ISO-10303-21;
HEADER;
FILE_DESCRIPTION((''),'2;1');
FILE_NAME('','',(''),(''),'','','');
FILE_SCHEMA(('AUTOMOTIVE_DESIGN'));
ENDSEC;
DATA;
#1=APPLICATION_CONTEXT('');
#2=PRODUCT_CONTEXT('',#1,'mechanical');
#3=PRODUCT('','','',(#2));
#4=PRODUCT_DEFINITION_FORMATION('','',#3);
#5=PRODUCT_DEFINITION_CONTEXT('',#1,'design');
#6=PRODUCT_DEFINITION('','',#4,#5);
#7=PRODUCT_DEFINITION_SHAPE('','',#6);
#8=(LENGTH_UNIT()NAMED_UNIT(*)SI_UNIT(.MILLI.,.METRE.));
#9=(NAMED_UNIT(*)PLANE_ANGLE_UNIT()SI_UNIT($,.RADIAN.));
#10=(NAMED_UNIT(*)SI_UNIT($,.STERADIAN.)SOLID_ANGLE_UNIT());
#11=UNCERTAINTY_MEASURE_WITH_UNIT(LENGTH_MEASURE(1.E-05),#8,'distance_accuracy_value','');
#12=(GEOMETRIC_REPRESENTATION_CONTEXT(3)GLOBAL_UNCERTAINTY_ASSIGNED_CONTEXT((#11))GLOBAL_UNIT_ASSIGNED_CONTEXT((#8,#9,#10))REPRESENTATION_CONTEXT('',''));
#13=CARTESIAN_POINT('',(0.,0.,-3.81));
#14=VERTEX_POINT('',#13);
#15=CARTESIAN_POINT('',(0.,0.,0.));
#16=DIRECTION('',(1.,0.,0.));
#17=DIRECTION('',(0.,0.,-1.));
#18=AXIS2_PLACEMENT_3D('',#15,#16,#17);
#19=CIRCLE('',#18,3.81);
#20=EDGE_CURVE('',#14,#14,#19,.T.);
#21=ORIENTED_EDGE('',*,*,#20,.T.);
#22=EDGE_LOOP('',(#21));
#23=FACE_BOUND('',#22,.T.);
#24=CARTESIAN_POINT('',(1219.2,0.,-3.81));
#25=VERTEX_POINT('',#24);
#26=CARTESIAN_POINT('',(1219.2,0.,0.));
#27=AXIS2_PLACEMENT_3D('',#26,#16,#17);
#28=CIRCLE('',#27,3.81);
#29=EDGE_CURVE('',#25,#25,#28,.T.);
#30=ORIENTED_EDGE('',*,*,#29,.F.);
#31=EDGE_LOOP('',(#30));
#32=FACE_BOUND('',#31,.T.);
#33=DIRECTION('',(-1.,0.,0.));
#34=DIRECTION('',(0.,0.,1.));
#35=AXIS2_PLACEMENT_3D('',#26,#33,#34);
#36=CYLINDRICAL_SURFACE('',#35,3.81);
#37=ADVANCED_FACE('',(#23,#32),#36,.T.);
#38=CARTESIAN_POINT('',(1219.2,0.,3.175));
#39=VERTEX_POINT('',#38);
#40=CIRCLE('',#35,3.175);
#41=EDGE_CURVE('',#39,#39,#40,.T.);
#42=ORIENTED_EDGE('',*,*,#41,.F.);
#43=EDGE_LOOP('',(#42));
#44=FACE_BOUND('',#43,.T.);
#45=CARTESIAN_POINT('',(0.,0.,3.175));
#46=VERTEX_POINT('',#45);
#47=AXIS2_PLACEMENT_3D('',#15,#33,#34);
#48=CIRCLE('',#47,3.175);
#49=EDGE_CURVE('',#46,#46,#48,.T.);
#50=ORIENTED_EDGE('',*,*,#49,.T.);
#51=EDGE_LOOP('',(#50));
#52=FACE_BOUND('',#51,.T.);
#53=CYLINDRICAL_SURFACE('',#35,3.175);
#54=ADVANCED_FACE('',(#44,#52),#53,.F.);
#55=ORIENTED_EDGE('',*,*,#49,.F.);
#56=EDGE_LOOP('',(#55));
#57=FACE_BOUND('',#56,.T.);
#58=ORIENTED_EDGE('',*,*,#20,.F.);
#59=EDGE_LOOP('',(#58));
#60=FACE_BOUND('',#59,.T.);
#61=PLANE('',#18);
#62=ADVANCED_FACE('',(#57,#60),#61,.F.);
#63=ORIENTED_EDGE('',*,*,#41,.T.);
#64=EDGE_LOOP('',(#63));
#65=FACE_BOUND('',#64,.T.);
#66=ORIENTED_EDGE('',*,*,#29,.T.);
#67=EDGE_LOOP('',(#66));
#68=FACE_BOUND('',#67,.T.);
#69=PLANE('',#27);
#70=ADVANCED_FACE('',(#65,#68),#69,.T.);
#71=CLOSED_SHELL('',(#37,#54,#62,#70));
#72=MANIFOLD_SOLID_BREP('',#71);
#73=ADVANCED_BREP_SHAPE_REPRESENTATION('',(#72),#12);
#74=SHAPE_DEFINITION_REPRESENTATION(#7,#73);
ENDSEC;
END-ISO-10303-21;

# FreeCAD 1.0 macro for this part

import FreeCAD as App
import Part
import Sketcher
from FreeCAD import Vector
Q = App.Units.Quantity

doc = App.newDocument("Part")
body = doc.addObject("PartDesign::Body", "Body")

# Sketch on YZ plane
sketch1 = doc.addObject("Sketcher::SketchObject", "Sketch")
body.addObject(sketch1)
sketch1.AttachmentSupport = (doc.YZ_Plane, [""])
sketch1.MapMode = "FlatFace"
sketch1.addGeometry(Part.Circle(Vector(0, 0, 0), Vector(0, 0, 1), 3.8), False)
sketch1.addConstraint(Sketcher.Constraint("Coincident", 0, 3, -1, 1))
sketch1.addConstraint(Sketcher.Constraint("Diameter", 0, Q("0.3 in")))
pad1 = doc.addObject("PartDesign::Pad", "Pad")
body.addObject(pad1)
pad1.Profile = sketch1
pad1.Length = Q("48 in")

# Sketch on YZ plane
sketch2 = doc.addObject("Sketcher::SketchObject", "Sketch001")
body.addObject(sketch2)
sketch2.AttachmentSupport = (doc.YZ_Plane, [""])
sketch2.MapMode = "FlatFace"
sketch2.addGeometry(Part.Circle(Vector(0, 0, 0), Vector(0, 0, 1), 3.2), False)
sketch2.addConstraint(Sketcher.Constraint("Coincident", 0, 3, -1, 1))
sketch2.addConstraint(Sketcher.Constraint("Diameter", 0, Q("0.25 in")))
pocket1 = doc.addObject("PartDesign::Pocket", "Pocket")
body.addObject(pocket1)
pocket1.Profile = sketch2
pocket1.Type = "ThroughAll"
pocket1.Reversed = True

doc.recompute()
